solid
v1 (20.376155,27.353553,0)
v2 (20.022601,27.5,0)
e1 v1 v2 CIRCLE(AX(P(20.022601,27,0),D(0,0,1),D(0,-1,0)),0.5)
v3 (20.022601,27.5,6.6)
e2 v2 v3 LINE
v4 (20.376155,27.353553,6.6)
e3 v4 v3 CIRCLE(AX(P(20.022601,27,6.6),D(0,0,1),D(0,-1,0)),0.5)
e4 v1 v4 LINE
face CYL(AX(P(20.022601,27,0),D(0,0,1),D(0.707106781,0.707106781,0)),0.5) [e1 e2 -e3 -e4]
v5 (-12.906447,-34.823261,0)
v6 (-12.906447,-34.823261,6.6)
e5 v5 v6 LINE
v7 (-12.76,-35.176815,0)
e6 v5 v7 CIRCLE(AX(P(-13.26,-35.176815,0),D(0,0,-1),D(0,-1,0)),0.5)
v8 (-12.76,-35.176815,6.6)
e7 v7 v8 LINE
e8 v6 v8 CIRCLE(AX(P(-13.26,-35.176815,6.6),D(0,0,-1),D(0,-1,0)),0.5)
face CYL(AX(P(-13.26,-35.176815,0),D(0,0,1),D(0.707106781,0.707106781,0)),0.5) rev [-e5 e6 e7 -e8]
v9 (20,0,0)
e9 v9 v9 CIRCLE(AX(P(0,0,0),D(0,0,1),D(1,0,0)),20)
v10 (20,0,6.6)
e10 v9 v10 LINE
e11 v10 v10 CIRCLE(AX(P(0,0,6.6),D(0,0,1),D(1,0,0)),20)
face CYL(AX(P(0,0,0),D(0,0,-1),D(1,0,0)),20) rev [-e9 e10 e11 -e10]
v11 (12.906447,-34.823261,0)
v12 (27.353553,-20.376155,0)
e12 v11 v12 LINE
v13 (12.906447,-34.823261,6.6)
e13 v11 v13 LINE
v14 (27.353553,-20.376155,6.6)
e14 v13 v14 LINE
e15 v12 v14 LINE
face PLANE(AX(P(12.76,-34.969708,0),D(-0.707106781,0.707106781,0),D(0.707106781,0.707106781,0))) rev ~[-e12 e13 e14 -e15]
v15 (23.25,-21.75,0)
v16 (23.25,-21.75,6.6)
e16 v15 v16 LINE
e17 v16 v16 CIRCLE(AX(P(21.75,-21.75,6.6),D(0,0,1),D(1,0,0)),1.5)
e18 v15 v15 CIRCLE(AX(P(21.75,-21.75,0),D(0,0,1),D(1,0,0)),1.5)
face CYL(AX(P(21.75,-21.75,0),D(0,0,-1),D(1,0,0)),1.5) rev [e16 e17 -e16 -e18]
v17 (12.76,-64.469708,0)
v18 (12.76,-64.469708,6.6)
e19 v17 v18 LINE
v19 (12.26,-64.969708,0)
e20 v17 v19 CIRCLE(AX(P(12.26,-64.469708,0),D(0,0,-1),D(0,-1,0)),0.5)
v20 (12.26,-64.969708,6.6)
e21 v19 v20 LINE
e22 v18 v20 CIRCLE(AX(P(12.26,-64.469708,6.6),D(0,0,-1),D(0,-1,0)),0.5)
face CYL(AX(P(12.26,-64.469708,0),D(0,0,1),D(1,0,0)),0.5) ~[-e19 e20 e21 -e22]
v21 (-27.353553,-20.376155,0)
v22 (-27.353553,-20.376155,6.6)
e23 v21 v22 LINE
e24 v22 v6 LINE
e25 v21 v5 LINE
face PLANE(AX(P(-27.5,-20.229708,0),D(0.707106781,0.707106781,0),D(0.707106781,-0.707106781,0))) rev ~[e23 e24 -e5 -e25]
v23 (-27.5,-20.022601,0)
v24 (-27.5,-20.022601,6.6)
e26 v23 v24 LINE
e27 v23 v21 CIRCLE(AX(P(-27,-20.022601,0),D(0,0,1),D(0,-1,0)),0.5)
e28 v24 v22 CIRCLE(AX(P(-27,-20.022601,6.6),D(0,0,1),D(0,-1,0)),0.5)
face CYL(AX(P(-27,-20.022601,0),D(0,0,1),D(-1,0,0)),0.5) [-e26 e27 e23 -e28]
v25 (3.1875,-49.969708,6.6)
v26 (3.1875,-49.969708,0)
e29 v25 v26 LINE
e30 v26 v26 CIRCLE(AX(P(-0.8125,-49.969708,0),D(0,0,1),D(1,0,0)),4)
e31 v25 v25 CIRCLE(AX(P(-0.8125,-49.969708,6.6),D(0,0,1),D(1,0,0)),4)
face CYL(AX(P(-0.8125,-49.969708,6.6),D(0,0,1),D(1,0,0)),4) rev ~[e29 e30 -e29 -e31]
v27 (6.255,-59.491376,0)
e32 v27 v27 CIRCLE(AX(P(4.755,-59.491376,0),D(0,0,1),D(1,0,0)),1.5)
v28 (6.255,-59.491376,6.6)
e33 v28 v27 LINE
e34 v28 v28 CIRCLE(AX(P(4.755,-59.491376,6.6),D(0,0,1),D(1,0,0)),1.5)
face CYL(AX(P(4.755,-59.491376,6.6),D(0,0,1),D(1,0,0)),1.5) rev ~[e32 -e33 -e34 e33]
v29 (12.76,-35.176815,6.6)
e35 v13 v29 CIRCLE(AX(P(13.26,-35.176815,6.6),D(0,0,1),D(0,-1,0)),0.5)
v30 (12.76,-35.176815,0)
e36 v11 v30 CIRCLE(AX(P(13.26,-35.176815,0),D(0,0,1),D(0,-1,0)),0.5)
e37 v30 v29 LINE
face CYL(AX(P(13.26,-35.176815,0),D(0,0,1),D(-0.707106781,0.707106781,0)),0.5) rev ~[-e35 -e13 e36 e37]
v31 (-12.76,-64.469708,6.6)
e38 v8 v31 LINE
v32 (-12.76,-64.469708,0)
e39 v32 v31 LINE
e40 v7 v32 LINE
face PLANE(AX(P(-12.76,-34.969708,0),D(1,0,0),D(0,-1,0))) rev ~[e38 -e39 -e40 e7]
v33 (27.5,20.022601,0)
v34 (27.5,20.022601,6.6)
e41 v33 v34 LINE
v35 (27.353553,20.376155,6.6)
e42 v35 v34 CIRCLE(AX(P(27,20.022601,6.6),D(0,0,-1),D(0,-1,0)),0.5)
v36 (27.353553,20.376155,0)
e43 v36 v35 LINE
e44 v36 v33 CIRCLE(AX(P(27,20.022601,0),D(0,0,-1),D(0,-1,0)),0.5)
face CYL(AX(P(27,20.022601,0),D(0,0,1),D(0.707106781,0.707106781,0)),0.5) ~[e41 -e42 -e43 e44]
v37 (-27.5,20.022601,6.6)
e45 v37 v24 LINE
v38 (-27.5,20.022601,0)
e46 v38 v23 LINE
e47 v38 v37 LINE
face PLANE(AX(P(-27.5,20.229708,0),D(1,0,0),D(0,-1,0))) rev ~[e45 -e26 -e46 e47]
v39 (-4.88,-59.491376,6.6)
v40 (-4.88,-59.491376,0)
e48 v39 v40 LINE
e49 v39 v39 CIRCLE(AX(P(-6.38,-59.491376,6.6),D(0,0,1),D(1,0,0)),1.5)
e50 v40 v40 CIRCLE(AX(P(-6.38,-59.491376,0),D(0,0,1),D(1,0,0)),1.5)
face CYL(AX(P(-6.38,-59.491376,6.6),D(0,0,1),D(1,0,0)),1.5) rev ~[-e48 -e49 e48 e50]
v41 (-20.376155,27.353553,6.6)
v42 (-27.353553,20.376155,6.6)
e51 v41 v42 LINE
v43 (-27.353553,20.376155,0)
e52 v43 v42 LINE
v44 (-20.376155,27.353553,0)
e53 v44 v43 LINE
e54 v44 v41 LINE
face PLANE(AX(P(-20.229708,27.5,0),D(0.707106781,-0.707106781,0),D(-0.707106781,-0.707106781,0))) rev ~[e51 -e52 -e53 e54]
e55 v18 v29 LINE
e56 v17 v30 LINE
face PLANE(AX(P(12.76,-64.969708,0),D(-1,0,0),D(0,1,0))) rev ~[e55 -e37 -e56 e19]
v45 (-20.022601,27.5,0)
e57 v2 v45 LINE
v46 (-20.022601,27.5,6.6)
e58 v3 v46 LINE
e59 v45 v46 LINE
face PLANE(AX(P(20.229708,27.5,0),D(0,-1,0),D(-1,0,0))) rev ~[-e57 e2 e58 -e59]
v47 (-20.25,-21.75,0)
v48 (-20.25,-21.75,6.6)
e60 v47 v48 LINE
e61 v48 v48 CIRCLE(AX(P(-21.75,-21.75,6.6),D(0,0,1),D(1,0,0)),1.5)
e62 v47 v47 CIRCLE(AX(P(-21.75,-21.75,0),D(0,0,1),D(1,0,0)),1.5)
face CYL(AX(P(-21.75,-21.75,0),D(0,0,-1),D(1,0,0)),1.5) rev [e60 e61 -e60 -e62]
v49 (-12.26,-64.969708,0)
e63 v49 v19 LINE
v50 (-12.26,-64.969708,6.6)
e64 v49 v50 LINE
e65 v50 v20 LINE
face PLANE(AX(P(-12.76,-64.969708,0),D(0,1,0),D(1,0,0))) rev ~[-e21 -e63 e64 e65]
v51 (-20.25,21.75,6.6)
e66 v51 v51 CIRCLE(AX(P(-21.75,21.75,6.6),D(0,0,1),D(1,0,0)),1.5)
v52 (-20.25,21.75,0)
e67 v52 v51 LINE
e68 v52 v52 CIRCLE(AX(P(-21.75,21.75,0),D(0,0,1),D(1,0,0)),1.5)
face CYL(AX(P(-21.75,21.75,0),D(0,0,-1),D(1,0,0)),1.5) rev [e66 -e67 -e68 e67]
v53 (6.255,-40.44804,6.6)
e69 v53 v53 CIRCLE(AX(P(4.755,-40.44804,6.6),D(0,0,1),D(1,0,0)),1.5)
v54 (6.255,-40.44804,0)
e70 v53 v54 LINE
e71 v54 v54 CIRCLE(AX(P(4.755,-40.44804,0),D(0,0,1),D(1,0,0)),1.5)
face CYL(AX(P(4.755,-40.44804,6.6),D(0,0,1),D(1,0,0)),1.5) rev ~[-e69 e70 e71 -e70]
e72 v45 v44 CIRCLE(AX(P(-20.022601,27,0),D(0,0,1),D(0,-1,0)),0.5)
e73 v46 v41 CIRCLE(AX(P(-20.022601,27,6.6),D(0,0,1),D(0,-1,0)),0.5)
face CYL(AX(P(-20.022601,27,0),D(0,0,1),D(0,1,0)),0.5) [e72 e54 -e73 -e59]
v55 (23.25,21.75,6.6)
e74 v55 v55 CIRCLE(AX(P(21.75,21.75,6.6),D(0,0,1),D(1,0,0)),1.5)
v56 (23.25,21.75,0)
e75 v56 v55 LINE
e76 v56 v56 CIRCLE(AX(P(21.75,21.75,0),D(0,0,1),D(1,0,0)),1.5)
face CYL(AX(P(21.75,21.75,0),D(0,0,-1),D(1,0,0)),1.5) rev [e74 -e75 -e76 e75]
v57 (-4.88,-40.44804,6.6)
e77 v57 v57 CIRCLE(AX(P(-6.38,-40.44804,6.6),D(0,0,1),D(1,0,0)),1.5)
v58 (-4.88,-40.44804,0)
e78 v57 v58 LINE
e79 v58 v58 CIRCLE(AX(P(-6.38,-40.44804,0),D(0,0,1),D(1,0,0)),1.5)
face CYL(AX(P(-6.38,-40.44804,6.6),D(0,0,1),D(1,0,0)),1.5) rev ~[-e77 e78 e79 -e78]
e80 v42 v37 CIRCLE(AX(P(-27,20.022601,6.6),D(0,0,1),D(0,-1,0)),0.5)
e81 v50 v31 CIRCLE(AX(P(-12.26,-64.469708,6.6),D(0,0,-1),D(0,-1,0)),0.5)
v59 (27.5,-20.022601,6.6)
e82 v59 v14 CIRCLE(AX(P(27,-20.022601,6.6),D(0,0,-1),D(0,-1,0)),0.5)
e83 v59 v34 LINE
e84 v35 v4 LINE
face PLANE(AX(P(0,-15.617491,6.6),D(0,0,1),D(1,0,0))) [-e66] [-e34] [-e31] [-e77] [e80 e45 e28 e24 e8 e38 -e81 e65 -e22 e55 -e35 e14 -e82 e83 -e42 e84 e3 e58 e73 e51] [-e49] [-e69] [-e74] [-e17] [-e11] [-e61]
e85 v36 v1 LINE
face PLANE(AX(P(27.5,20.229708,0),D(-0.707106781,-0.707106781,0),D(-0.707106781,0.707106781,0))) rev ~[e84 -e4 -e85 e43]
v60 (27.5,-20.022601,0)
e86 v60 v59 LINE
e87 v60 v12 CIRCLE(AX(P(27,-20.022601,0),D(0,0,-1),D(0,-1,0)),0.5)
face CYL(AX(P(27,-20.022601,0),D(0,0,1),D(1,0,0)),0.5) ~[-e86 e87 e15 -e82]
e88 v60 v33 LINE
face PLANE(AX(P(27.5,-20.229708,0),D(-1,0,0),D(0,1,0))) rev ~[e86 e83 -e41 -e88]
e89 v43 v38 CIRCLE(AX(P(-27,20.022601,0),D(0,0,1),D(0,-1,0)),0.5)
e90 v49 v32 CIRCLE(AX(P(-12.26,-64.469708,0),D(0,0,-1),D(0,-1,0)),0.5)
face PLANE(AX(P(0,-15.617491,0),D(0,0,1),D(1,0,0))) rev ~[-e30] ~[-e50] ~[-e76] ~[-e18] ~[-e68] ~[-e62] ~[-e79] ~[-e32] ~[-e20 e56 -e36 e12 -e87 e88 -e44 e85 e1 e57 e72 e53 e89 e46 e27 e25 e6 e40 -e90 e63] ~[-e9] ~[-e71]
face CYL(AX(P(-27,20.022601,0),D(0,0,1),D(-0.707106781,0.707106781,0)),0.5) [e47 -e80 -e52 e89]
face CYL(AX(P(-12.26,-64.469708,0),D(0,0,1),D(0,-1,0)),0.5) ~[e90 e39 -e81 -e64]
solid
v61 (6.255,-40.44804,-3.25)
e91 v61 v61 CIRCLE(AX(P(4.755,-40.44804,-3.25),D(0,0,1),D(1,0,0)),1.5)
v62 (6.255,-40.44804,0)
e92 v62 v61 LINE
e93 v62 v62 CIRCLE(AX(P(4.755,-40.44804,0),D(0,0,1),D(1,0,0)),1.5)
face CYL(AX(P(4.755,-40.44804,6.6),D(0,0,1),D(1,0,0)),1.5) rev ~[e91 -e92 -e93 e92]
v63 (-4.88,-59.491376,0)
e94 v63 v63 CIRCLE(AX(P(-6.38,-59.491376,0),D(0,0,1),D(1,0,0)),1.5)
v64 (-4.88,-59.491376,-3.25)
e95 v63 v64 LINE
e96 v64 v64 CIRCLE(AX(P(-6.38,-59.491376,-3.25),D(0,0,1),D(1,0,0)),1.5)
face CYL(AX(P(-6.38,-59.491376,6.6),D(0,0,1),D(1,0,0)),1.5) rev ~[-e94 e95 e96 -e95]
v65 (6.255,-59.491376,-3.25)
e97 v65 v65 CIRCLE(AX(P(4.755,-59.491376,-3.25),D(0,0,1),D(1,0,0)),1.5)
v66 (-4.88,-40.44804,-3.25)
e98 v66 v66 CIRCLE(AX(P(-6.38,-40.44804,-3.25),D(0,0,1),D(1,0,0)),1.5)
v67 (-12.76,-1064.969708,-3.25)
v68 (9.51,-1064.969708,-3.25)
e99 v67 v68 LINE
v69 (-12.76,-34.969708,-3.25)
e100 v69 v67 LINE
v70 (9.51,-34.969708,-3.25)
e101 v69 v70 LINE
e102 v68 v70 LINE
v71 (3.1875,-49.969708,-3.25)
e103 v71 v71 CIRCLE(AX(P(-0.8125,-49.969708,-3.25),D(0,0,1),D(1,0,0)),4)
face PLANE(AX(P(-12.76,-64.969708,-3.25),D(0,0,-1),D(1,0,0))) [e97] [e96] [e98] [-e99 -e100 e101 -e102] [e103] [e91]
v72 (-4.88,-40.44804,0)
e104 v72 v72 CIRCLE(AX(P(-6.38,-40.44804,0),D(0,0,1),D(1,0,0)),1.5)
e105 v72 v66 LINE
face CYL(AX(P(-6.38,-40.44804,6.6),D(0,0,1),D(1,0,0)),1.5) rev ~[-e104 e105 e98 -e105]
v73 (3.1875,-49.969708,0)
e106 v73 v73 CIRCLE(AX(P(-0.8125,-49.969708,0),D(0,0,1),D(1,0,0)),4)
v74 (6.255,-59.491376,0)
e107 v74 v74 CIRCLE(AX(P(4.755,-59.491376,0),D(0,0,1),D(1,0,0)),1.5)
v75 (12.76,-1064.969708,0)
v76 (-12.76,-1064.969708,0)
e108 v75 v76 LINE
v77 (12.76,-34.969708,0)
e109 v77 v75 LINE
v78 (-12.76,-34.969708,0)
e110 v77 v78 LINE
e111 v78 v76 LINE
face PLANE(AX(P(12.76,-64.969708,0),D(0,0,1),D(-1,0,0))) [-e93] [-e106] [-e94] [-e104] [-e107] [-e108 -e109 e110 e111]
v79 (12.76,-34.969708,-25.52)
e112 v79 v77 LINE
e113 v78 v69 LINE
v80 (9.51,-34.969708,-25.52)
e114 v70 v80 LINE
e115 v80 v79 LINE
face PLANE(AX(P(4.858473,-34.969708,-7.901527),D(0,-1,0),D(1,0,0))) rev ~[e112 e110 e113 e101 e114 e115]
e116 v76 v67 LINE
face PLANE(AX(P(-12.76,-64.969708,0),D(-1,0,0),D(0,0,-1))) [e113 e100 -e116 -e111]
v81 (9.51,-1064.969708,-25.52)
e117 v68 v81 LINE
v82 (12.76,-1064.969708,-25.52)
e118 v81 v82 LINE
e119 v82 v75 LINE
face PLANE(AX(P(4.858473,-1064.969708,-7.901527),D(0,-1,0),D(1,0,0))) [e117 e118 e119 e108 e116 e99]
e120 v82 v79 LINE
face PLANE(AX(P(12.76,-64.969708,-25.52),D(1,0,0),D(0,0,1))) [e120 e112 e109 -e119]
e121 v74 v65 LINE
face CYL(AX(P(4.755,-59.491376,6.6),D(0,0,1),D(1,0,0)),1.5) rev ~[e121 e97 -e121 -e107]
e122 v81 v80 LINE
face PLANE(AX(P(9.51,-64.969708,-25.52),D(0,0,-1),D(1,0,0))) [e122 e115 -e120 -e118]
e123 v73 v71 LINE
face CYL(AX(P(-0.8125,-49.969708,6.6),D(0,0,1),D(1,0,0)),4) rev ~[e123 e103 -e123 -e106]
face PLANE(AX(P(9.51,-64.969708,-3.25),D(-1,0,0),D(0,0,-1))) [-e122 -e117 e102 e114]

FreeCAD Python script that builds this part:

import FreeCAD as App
import Part
import Sketcher
from FreeCAD import Vector
Q = App.Units.Quantity


def edges_at(feature, points):
    """Names of the edges that pass closest to the given points."""
    edges = feature.Shape.Edges
    near = lambda p: min(range(len(edges)), key=lambda i: edges[i].distToShape(Part.Vertex(*p))[0])
    return sorted({f"Edge{near(p) + 1}" for p in points})

doc = App.newDocument("Part")
body = doc.addObject("PartDesign::Body", "Body")

# Sketch on XY plane
sketch1 = body.newObject("Sketcher::SketchObject", "Sketch")
sketch1.AttachmentSupport = (doc.getObject("XY_Plane"), [""])
sketch1.MapMode = "FlatFace"
sketch1.addGeometry([
    Part.LineSegment(Vector(27.5, 20.229708, 0), Vector(20.229708, 27.5, 0)),  # 0
    Part.LineSegment(Vector(20.229708, 27.5, 0), Vector(-20.229708, 27.5, 0)),  # 1
    Part.LineSegment(Vector(-20.229708, 27.5, 0), Vector(-27.5, 20.229708, 0)),  # 2
    Part.LineSegment(Vector(-27.5, 20.229708, 0), Vector(-27.5, -20.229708, 0)),  # 3
    Part.LineSegment(Vector(-27.5, -20.229708, 0), Vector(-12.76, -34.969708, 0)),  # 4
    Part.LineSegment(Vector(-12.76, -34.969708, 0), Vector(-12.76, -64.969708, 0)),  # 5
    Part.LineSegment(Vector(-12.76, -64.969708, 0), Vector(12.76, -64.969708, 0)),  # 6
    Part.LineSegment(Vector(12.76, -64.969708, 0), Vector(12.76, -34.969708, 0)),  # 7
    Part.LineSegment(Vector(12.76, -34.969708, 0), Vector(27.5, -20.229708, 0)),  # 8
    Part.LineSegment(Vector(27.5, -20.229708, 0), Vector(27.5, 20.229708, 0)),  # 9
    Part.Circle(Vector(-21.75, -21.75, 0), Vector(0, 0, 1), 1.5),  # 10
    Part.Circle(Vector(21.75, -21.75, 0), Vector(0, 0, 1), 1.5),  # 11
    Part.Circle(Vector(-21.75, 21.75, 0), Vector(0, 0, 1), 1.5),  # 12
    Part.Circle(Vector(0, 0, 0), Vector(0, 0, 1), 20),  # 13
    Part.Circle(Vector(21.75, 21.75, 0), Vector(0, 0, 1), 1.5),  # 14
], False)
sketch1.addConstraint([
    Sketcher.Constraint("Coincident", 0, 2, 1, 1),
    Sketcher.Constraint("Coincident", 1, 2, 2, 1),
    Sketcher.Constraint("Coincident", 2, 2, 3, 1),
    Sketcher.Constraint("Coincident", 3, 2, 4, 1),
    Sketcher.Constraint("Coincident", 4, 2, 5, 1),
    Sketcher.Constraint("Coincident", 5, 2, 6, 1),
    Sketcher.Constraint("Coincident", 6, 2, 7, 1),
    Sketcher.Constraint("Coincident", 7, 2, 8, 1),
    Sketcher.Constraint("Coincident", 8, 2, 9, 1),
    Sketcher.Constraint("Coincident", 9, 2, 0, 1),
    Sketcher.Constraint("Horizontal", 1),
    Sketcher.Constraint("Vertical", 3),
    Sketcher.Constraint("Vertical", 5),
    Sketcher.Constraint("Horizontal", 6),
    Sketcher.Constraint("Vertical", 7),
    Sketcher.Constraint("Vertical", 9),
    Sketcher.Constraint("Coincident", 13, 3, -1, 1),
    Sketcher.Constraint("Equal", 10, 11),
    Sketcher.Constraint("Equal", 11, 12),
    Sketcher.Constraint("Equal", 12, 14),
    Sketcher.Constraint("Symmetric", 11, 3, 12, 3, -1, 1),
    Sketcher.Constraint("Symmetric", 10, 3, 14, 3, -1, 1),
    Sketcher.Constraint("Symmetric", 2, 2, 8, 2, -1, 1),
    Sketcher.Constraint("Symmetric", 10, 3, 11, 3, -2),
    Sketcher.Constraint("Symmetric", 4, 2, 7, 2, -2),
    Sketcher.Constraint("Perpendicular", 0, 2),
    Sketcher.Constraint("Perpendicular", 2, 4),
    Sketcher.Constraint("Perpendicular", 4, 8),
    Sketcher.Constraint("Horizontal", 3, 2, 8, 2),
    Sketcher.Constraint("Horizontal", 2, 2, 9, 2),
    Sketcher.Constraint("Equal", 1, 3),
    Sketcher.Constraint("Diameter", 10, Q("3 mm")),
    Sketcher.Constraint("Diameter", 13, Q("40 mm")),
    Sketcher.Constraint("DistanceY", 5, 2, 5, 1, Q("30 mm")),
    Sketcher.Constraint("DistanceX", 6, 1, 6, 2, Q("25.52 mm")),
    Sketcher.Constraint("DistanceY", -1, 1, 0, 2, Q("27.5 mm")),
    Sketcher.Constraint("DistanceX", 10, 3, 11, 3, Q("43.5 mm")),
    Sketcher.Constraint("DistanceY", 10, 3, 12, 3, Q("43.5 mm")),
    Sketcher.Constraint("DistanceX", 1, 2, 1, 1, Q("40.459416 mm")),
])
pad1 = body.newObject("PartDesign::Pad", "Pad")
pad1.Profile = sketch1
pad1.Length = 6.6
body2 = doc.addObject("PartDesign::Body", "Body001")

# Sketch on XZ plane
sketch2 = body2.newObject("Sketcher::SketchObject", "Sketch001")
sketch2.AttachmentSupport = (doc.getObject("XZ_Plane001"), [""])
sketch2.MapMode = "FlatFace"
sketch2.AttachmentOffset = App.Placement(Vector(0, 0, 64.969708), App.Rotation())
sketch2.addGeometry([
    Part.LineSegment(Vector(12.76, -25.52, 0), Vector(12.76, 0, 0)),  # 0
    Part.LineSegment(Vector(12.76, 0, 0), Vector(-12.76, 0, 0)),  # 1
    Part.LineSegment(Vector(-12.76, 0, 0), Vector(-12.76, -3.25, 0)),  # 2
    Part.LineSegment(Vector(-12.76, -3.25, 0), Vector(9.51, -3.25, 0)),  # 3
    Part.LineSegment(Vector(9.51, -3.25, 0), Vector(9.51, -25.52, 0)),  # 4
    Part.LineSegment(Vector(9.51, -25.52, 0), Vector(12.76, -25.52, 0)),  # 5
], False)
sketch2.addConstraint([
    Sketcher.Constraint("Coincident", 0, 2, 1, 1),
    Sketcher.Constraint("Coincident", 1, 2, 2, 1),
    Sketcher.Constraint("Coincident", 2, 2, 3, 1),
    Sketcher.Constraint("Coincident", 3, 2, 4, 1),
    Sketcher.Constraint("Coincident", 4, 2, 5, 1),
    Sketcher.Constraint("Coincident", 5, 2, 0, 1),
    Sketcher.Constraint("Vertical", 0),
    Sketcher.Constraint("Horizontal", 1),
    Sketcher.Constraint("Vertical", 2),
    Sketcher.Constraint("Horizontal", 3),
    Sketcher.Constraint("Vertical", 4),
    Sketcher.Constraint("Horizontal", 5),
    Sketcher.Constraint("Symmetric", 0, 2, 1, 2, -1, 1),
    Sketcher.Constraint("Equal", 1, 0),
    Sketcher.Constraint("Equal", 5, 2),
    Sketcher.Constraint("DistanceX", 1, 2, 1, 1, Q("25.52 mm")),
    Sketcher.Constraint("DistanceX", 3, 1, 3, 2, Q("22.27 mm")),
])
pad2 = body2.newObject("PartDesign::Pad", "Pad001")
pad2.Profile = sketch2
pad2.Type = "TwoLengths"
pad2.Length = 1000
pad2.Length2 = 30
body3 = doc.addObject("PartDesign::Body", "Body002")
body3.AllowCompound = True

# Sketch on XY plane
sketch3 = body3.newObject("Sketcher::SketchObject", "Sketch002")
sketch3.AttachmentSupport = (doc.getObject("XY_Plane002"), [""])
sketch3.MapMode = "FlatFace"
sketch3.AttachmentOffset = App.Placement(Vector(0, 0, 6.6), App.Rotation())
sketch3.addGeometry([
    Part.Circle(Vector(-6.38, -40.44804, 0), Vector(0, 0, 1), 1.5),  # 0
    Part.Circle(Vector(4.755, -40.44804, 0), Vector(0, 0, 1), 1.5),  # 1
    Part.Circle(Vector(-6.38, -59.491376, 0), Vector(0, 0, 1), 1.5),  # 2
    Part.Circle(Vector(4.755, -59.491376, 0), Vector(0, 0, 1), 1.5),  # 3
    Part.Circle(Vector(-0.8125, -49.969708, 0), Vector(0, 0, 1), 4),  # 4
], False)
sketch3.addConstraint([
    Sketcher.Constraint("Equal", 0, 1),
    Sketcher.Constraint("Equal", 1, 2),
    Sketcher.Constraint("Equal", 2, 3),
    Sketcher.Constraint("Horizontal", 0, 3, 1, 3),
    Sketcher.Constraint("Horizontal", 2, 3, 3, 3),
    Sketcher.Constraint("Vertical", 0, 3, 2, 3),
    Sketcher.Constraint("Vertical", 1, 3, 3, 3),
    Sketcher.Constraint("Diameter", 0, Q("3 mm")),
    Sketcher.Constraint("Diameter", 4, Q("8 mm")),
    Sketcher.Constraint("DistanceX", 0, 3, -1, 1, Q("6.38 mm")),
    Sketcher.Constraint("DistanceX", -1, 1, 1, 3, Q("4.755 mm")),
    Sketcher.Constraint("DistanceX", 4, 3, -1, 1, Q("0.8125 mm")),
    Sketcher.Constraint("DistanceY", 0, 3, -1, 1, Q("40.44804 mm")),
    Sketcher.Constraint("DistanceY", 2, 3, 4, 3, Q("9.521668 mm")),
    Sketcher.Constraint("DistanceY", 2, 3, -1, 1, Q("59.491376 mm")),
])
pad3 = body3.newObject("PartDesign::Pad", "Pad002")
pad3.Profile = sketch3
pad3.Length = 32.121
pad3.Reversed = True
doc.recompute()

body4 = doc.addObject("PartDesign::Body", "Body003")
body4.BaseFeature = body3
boolean = body.newObject("PartDesign::Boolean", "Boolean")
boolean.Type = "Cut"
boolean.addObjects([body4])
doc.recompute()

fillet = body.newObject("PartDesign::Fillet", "Fillet")
fillet.Base = (boolean, edges_at(boolean, [
    (12.76, -64.97, 3.3),
    (-12.76, -64.97, 3.3),
    (27.5, -20.23, 3.3),
    (12.76, -34.97, 3.3),
    (-12.76, -34.97, 3.3),
    (-27.5, -20.23, 3.3),
    (27.5, 20.23, 3.3),
    (20.23, 27.5, 3.3),
    (-20.23, 27.5, 3.3),
    (-27.5, 20.23, 3.3),
]))
fillet.Radius = 0.5
doc.recompute()

boolean2 = body2.newObject("PartDesign::Boolean", "Boolean001")
boolean2.Type = "Cut"
boolean2.addObjects([body3])

doc.recompute()
